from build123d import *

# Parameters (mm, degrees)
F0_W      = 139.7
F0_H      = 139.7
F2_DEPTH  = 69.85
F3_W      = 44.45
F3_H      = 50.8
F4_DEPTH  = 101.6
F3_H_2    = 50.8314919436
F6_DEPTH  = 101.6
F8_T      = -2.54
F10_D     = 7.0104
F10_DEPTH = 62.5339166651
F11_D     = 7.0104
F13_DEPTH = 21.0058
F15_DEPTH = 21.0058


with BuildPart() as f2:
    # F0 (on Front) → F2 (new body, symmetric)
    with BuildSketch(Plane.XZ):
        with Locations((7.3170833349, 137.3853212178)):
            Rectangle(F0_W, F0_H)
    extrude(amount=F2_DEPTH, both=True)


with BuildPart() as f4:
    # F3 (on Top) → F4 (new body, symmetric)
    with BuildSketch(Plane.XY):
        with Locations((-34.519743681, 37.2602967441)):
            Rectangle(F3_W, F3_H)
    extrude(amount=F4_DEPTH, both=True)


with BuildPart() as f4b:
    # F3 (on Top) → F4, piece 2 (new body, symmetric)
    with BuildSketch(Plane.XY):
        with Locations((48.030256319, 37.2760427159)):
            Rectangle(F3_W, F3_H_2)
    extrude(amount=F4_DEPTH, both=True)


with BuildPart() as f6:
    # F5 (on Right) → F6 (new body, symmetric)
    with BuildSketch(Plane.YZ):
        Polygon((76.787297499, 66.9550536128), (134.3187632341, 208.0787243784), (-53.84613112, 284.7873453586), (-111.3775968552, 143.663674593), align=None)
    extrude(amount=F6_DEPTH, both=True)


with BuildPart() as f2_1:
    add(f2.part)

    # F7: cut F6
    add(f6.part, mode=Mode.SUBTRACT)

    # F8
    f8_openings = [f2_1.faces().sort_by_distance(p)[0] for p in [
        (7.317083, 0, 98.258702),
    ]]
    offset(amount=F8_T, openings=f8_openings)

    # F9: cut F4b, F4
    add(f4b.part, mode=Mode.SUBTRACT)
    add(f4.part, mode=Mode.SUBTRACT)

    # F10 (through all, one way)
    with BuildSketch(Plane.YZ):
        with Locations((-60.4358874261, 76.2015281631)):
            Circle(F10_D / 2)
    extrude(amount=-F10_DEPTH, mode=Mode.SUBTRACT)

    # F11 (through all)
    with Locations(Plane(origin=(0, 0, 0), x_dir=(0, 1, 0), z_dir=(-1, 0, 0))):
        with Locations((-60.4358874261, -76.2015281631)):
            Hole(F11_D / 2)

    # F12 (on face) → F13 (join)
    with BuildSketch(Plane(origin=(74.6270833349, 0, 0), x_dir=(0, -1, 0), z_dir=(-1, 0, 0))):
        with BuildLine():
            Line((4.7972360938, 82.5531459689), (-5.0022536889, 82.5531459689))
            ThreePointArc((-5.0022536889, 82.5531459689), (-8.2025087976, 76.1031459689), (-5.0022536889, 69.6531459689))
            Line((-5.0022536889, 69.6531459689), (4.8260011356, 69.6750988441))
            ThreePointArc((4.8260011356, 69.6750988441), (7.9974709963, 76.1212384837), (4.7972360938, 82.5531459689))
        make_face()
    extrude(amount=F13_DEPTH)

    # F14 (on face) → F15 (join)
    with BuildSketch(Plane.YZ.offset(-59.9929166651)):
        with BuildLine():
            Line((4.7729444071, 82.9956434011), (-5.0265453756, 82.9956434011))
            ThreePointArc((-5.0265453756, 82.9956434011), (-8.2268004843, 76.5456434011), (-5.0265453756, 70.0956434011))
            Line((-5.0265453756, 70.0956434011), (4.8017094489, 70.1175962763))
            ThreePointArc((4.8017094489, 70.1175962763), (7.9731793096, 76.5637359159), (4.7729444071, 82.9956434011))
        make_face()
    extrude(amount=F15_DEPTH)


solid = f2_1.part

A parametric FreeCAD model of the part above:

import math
import FreeCAD as App
import Part
import Sketcher
Q = App.Units.Quantity


def faces_at(feature, points):
    """Names of the faces that lie closest to the given points."""
    faces = feature.Shape.Faces
    near = lambda p: min(range(len(faces)), key=lambda i: faces[i].distToShape(Part.Vertex(*p))[0])
    return sorted({f"Face{near(p) + 1}" for p in points})


def add_polygon(sketch, points):
    """Adds a closed chain of lines whose ends are joined by coincident constraints."""
    first, n = sketch.GeometryCount, len(points)
    for a, b in zip(points, points[1:] + points[:1]):
        sketch.addGeometry(Part.LineSegment(App.Vector(*a, 0), App.Vector(*b, 0)), False)
    for i in range(n):
        sketch.addConstraint(Sketcher.Constraint("Coincident", first + i, 2, first + (i + 1) % n, 1))

doc = App.newDocument("Part")
body = doc.addObject("PartDesign::Body", "Body")

# Sketch on XZ plane
sketch1 = body.newObject("Sketcher::SketchObject", "Sketch")
sketch1.AttachmentSupport = (doc.getObject("XZ_Plane"), [""])
sketch1.MapMode = "FlatFace"
add_polygon(sketch1, [(-62.532917, 207.235321), (-62.532917, 67.535321), (77.167083, 67.535321), (77.167083, 207.235321)])  # lines 0-3
sketch1.addConstraint([
    Sketcher.Constraint("Vertical", 0),
    Sketcher.Constraint("Horizontal", 1),
    Sketcher.Constraint("Vertical", 2),
    Sketcher.Constraint("Horizontal", 3),
    Sketcher.Constraint("Equal", 3, 0),
    Sketcher.Constraint("DistanceX", 1, 1, 1, 2, Q("5.5 in")),
    Sketcher.Constraint("DistanceY", -1, 1, 0, 2, 67.535321),
    Sketcher.Constraint("DistanceX", 0, 2, -1, 1, 62.532917),
])
pad1 = body.newObject("PartDesign::Pad", "Pad")
pad1.Profile = sketch1
pad1.Length = Q("5.5 in")
pad1.Midplane = True
body2 = doc.addObject("PartDesign::Body", "Body001")

# Sketch on XY plane
sketch2 = body2.newObject("Sketcher::SketchObject", "Sketch001")
sketch2.AttachmentSupport = (doc.getObject("XY_Plane001"), [""])
sketch2.MapMode = "FlatFace"
add_polygon(sketch2, [(-56.744744, 62.660297), (-56.744744, 11.860297), (-12.294744, 11.860297), (-12.294744, 62.660297)])  # lines 0-3
sketch2.addConstraint([
    Sketcher.Constraint("Vertical", 0),
    Sketcher.Constraint("Horizontal", 1),
    Sketcher.Constraint("Vertical", 2),
    Sketcher.Constraint("Horizontal", 3),
    Sketcher.Constraint("DistanceY", 0, 2, 0, 1, Q("2 in")),
    Sketcher.Constraint("DistanceX", 1, 1, 1, 2, Q("1.75 in")),
    Sketcher.Constraint("DistanceX", 0, 2, -1, 1, 56.744744),
    Sketcher.Constraint("DistanceY", -1, 1, 0, 2, 11.860297),
])
pad2 = body2.newObject("PartDesign::Pad", "Pad001")
pad2.Profile = sketch2
pad2.Length = Q("8 in")
pad2.Midplane = True
body3 = doc.addObject("PartDesign::Body", "Body002")

# Sketch on XY plane
sketch3 = body3.newObject("Sketcher::SketchObject", "Sketch002")
sketch3.AttachmentSupport = (doc.getObject("XY_Plane002"), [""])
sketch3.MapMode = "FlatFace"
add_polygon(sketch3, [(25.805256, 62.691789), (25.805256, 11.860297), (70.255256, 11.860297), (70.255256, 62.691789)])  # lines 0-3
sketch3.addConstraint([
    Sketcher.Constraint("Vertical", 0),
    Sketcher.Constraint("Horizontal", 1),
    Sketcher.Constraint("Vertical", 2),
    Sketcher.Constraint("Horizontal", 3),
    Sketcher.Constraint("DistanceX", 1, 1, 1, 2, Q("1.75 in")),
    Sketcher.Constraint("DistanceY", 0, 2, 0, 1, 50.831492),
    Sketcher.Constraint("DistanceY", -1, 1, 2, 2, 62.691789),
    Sketcher.Constraint("DistanceX", -1, 1, 0, 2, 25.805256),
])
pad3 = body3.newObject("PartDesign::Pad", "Pad002")
pad3.Profile = sketch3
pad3.Length = Q("8 in")
pad3.Midplane = True
body4 = doc.addObject("PartDesign::Body", "Body003")

# Sketch on YZ plane
sketch4 = body4.newObject("Sketcher::SketchObject", "Sketch003")
sketch4.AttachmentSupport = (doc.getObject("YZ_Plane003"), [""])
sketch4.MapMode = "FlatFace"
add_polygon(sketch4, [(76.787297, 66.955054), (134.318763, 208.078724), (-53.846131, 284.787345), (-111.377597, 143.663675)])  # lines 0-3
sketch4.addConstraint([
    Sketcher.Constraint("Perpendicular", 0, 1),
    Sketcher.Constraint("Perpendicular", 1, 2),
    Sketcher.Constraint("Perpendicular", 2, 3),
    Sketcher.Constraint("Distance", 0, Q("6 in")),
    Sketcher.Constraint("Distance", 1, Q("8 in")),
    Sketcher.Constraint("DistanceX", 1, 2, -1, 1, 53.846131),
    Sketcher.Constraint("DistanceY", 0, 2, 1, 2, 76.708621),
    Sketcher.Constraint("DistanceY", -1, 1, 0, 2, 208.078724),
])
pad4 = body4.newObject("PartDesign::Pad", "Pad003")
pad4.Profile = sketch4
pad4.Length = Q("8 in")
pad4.Midplane = True
doc.recompute()

boolean = body.newObject("PartDesign::Boolean", "Boolean")
boolean.Type = "Cut"
boolean.addObjects([body4])
doc.recompute()

thickness = body.newObject("PartDesign::Thickness", "Thickness")
thickness.Base = (boolean, faces_at(boolean, [(7.317, 0, 98.259)]))
thickness.Value = Q("0.1 in")
thickness.Reversed = True
thickness.Join = "Arc"
doc.recompute()

boolean2 = body.newObject("PartDesign::Boolean", "Boolean001")
boolean2.Type = "Cut"
boolean2.addObjects([body3])
doc.recompute()

boolean3 = body.newObject("PartDesign::Boolean", "Boolean002")
boolean3.Type = "Cut"
boolean3.addObjects([body2])

# Sketch on YZ plane
sketch5 = body.newObject("Sketcher::SketchObject", "Sketch004")
sketch5.AttachmentSupport = (doc.getObject("YZ_Plane"), [""])
sketch5.MapMode = "FlatFace"
sketch5.addGeometry(Part.Circle(App.Vector(-60.435887, 76.201528, 0), App.Vector(0, 0, 1), 3.5052), False)
sketch5.addConstraint([
    Sketcher.Constraint("Diameter", 0, Q("0.276 in")),
    Sketcher.Constraint("DistanceY", -1, 1, 0, 3, 76.201528),
    Sketcher.Constraint("DistanceX", 0, 3, -1, 1, 60.435887),
])
pocket1 = body.newObject("PartDesign::Pocket", "Pocket")
pocket1.Profile = sketch5
pocket1.Type = "ThroughAll"

# Sketch on YZ plane
sketch6 = body.newObject("Sketcher::SketchObject", "Sketch005")
sketch6.AttachmentSupport = (doc.getObject("YZ_Plane"), [""])
sketch6.MapMode = "FlatFace"
sketch6.addGeometry(Part.Circle(App.Vector(-60.435887, 76.201528, 0), App.Vector(0, 0, 1), 3.5052), False)
sketch6.addConstraint([
    Sketcher.Constraint("Diameter", 0, Q("0.276 in")),
    Sketcher.Constraint("DistanceY", -1, 1, 0, 3, 76.201528),
    Sketcher.Constraint("DistanceX", 0, 3, -1, 1, 60.435887),
])
doc.recompute()
hole = body.newObject("PartDesign::Hole", "Hole")
hole.Profile = sketch6
hole.ThreadType = "None"
hole.Diameter = Q("0.276 in")
hole.DepthType = "ThroughAll"
hole.Reversed = True

# Sketch on YZ plane
sketch7 = body.newObject("Sketcher::SketchObject", "Sketch006")
sketch7.AttachmentSupport = (doc.getObject("YZ_Plane"), [""])
sketch7.MapMode = "FlatFace"
sketch7.AttachmentOffset = App.Placement(App.Vector(0, 0, 74.627083), App.Rotation())
sketch7.addGeometry([
    Part.LineSegment(App.Vector(-4.797236, 82.553146, 0), App.Vector(5.002254, 82.553146, 0)),
    Part.ArcOfCircle(Part.Circle(App.Vector(0.102509, 76.103146, 0), App.Vector(0, 0, 1), 8.1), math.radians(-52.777866), math.radians(52.777866)),
    Part.LineSegment(App.Vector(5.002254, 69.653146, 0), App.Vector(-4.826001, 69.675099, 0)),
    Part.ArcOfCircle(Part.Circle(App.Vector(0.102509, 76.103146, 0), App.Vector(0, 0, 1), 8.1), math.radians(127.222134), math.radians(232.521909)),
], False)
sketch7.addConstraint([
    Sketcher.Constraint("Coincident", 0, 2, 1, 2),
    Sketcher.Constraint("Coincident", 1, 1, 2, 1),
    Sketcher.Constraint("Coincident", 2, 2, 3, 2),
    Sketcher.Constraint("Coincident", 3, 1, 0, 1),
    Sketcher.Constraint("Horizontal", 0),
    Sketcher.Constraint("Coincident", 3, 3, 1, 3),
    Sketcher.Constraint("Equal", 1, 3),
    Sketcher.Constraint("Vertical", 0, 2, 1, 1),
    Sketcher.Constraint("DistanceX", 2, 2, -1, 1, Q("0.19 in")),
    Sketcher.Constraint("Radius", 1, 8.1),
    Sketcher.Constraint("DistanceX", 0, 1, 0, 2, 9.79949),
    Sketcher.Constraint("DistanceY", -1, 1, 2, 2, 69.675099),
    Sketcher.Constraint("Distance", 2, 9.828279),
])
pad5 = body.newObject("PartDesign::Pad", "Pad004")
pad5.Profile = sketch7
pad5.Length = Q("0.827 in")
pad5.Reversed = True

# Sketch on YZ plane
sketch8 = body.newObject("Sketcher::SketchObject", "Sketch007")
sketch8.AttachmentSupport = (doc.getObject("YZ_Plane"), [""])
sketch8.MapMode = "FlatFace"
sketch8.AttachmentOffset = App.Placement(App.Vector(0, 0, -59.992917), App.Rotation())
sketch8.addGeometry([
    Part.LineSegment(App.Vector(4.772944, 82.995643, 0), App.Vector(-5.026545, 82.995643, 0)),
    Part.ArcOfCircle(Part.Circle(App.Vector(-0.1268, 76.545643, 0), App.Vector(0, 0, 1), 8.1), math.radians(127.222134), math.radians(232.777866)),
    Part.LineSegment(App.Vector(-5.026545, 70.095643, 0), App.Vector(4.801709, 70.117596, 0)),
    Part.ArcOfCircle(Part.Circle(App.Vector(-0.1268, 76.545643, 0), App.Vector(0, 0, 1), 8.1), math.radians(-52.521909), math.radians(52.777866)),
], False)
sketch8.addConstraint([
    Sketcher.Constraint("Coincident", 0, 2, 1, 1),
    Sketcher.Constraint("Coincident", 1, 2, 2, 1),
    Sketcher.Constraint("Coincident", 2, 2, 3, 1),
    Sketcher.Constraint("Coincident", 3, 2, 0, 1),
    Sketcher.Constraint("Horizontal", 0),
    Sketcher.Constraint("Coincident", 3, 3, 1, 3),
    Sketcher.Constraint("Equal", 1, 3),
    Sketcher.Constraint("Vertical", 0, 2, 1, 2),
    Sketcher.Constraint("Radius", 1, 8.1),
    Sketcher.Constraint("DistanceX", 0, 2, 0, 1, 9.79949),
    Sketcher.Constraint("DistanceX", 1, 3, -1, 1, 0.1268),
    Sketcher.Constraint("Distance", 2, 9.828279),
    Sketcher.Constraint("DistanceY", -1, 1, 1, 3, 76.545643),
])
pad6 = body.newObject("PartDesign::Pad", "Pad005")
pad6.Profile = sketch8
pad6.Length = Q("0.827 in")

doc.recompute()
